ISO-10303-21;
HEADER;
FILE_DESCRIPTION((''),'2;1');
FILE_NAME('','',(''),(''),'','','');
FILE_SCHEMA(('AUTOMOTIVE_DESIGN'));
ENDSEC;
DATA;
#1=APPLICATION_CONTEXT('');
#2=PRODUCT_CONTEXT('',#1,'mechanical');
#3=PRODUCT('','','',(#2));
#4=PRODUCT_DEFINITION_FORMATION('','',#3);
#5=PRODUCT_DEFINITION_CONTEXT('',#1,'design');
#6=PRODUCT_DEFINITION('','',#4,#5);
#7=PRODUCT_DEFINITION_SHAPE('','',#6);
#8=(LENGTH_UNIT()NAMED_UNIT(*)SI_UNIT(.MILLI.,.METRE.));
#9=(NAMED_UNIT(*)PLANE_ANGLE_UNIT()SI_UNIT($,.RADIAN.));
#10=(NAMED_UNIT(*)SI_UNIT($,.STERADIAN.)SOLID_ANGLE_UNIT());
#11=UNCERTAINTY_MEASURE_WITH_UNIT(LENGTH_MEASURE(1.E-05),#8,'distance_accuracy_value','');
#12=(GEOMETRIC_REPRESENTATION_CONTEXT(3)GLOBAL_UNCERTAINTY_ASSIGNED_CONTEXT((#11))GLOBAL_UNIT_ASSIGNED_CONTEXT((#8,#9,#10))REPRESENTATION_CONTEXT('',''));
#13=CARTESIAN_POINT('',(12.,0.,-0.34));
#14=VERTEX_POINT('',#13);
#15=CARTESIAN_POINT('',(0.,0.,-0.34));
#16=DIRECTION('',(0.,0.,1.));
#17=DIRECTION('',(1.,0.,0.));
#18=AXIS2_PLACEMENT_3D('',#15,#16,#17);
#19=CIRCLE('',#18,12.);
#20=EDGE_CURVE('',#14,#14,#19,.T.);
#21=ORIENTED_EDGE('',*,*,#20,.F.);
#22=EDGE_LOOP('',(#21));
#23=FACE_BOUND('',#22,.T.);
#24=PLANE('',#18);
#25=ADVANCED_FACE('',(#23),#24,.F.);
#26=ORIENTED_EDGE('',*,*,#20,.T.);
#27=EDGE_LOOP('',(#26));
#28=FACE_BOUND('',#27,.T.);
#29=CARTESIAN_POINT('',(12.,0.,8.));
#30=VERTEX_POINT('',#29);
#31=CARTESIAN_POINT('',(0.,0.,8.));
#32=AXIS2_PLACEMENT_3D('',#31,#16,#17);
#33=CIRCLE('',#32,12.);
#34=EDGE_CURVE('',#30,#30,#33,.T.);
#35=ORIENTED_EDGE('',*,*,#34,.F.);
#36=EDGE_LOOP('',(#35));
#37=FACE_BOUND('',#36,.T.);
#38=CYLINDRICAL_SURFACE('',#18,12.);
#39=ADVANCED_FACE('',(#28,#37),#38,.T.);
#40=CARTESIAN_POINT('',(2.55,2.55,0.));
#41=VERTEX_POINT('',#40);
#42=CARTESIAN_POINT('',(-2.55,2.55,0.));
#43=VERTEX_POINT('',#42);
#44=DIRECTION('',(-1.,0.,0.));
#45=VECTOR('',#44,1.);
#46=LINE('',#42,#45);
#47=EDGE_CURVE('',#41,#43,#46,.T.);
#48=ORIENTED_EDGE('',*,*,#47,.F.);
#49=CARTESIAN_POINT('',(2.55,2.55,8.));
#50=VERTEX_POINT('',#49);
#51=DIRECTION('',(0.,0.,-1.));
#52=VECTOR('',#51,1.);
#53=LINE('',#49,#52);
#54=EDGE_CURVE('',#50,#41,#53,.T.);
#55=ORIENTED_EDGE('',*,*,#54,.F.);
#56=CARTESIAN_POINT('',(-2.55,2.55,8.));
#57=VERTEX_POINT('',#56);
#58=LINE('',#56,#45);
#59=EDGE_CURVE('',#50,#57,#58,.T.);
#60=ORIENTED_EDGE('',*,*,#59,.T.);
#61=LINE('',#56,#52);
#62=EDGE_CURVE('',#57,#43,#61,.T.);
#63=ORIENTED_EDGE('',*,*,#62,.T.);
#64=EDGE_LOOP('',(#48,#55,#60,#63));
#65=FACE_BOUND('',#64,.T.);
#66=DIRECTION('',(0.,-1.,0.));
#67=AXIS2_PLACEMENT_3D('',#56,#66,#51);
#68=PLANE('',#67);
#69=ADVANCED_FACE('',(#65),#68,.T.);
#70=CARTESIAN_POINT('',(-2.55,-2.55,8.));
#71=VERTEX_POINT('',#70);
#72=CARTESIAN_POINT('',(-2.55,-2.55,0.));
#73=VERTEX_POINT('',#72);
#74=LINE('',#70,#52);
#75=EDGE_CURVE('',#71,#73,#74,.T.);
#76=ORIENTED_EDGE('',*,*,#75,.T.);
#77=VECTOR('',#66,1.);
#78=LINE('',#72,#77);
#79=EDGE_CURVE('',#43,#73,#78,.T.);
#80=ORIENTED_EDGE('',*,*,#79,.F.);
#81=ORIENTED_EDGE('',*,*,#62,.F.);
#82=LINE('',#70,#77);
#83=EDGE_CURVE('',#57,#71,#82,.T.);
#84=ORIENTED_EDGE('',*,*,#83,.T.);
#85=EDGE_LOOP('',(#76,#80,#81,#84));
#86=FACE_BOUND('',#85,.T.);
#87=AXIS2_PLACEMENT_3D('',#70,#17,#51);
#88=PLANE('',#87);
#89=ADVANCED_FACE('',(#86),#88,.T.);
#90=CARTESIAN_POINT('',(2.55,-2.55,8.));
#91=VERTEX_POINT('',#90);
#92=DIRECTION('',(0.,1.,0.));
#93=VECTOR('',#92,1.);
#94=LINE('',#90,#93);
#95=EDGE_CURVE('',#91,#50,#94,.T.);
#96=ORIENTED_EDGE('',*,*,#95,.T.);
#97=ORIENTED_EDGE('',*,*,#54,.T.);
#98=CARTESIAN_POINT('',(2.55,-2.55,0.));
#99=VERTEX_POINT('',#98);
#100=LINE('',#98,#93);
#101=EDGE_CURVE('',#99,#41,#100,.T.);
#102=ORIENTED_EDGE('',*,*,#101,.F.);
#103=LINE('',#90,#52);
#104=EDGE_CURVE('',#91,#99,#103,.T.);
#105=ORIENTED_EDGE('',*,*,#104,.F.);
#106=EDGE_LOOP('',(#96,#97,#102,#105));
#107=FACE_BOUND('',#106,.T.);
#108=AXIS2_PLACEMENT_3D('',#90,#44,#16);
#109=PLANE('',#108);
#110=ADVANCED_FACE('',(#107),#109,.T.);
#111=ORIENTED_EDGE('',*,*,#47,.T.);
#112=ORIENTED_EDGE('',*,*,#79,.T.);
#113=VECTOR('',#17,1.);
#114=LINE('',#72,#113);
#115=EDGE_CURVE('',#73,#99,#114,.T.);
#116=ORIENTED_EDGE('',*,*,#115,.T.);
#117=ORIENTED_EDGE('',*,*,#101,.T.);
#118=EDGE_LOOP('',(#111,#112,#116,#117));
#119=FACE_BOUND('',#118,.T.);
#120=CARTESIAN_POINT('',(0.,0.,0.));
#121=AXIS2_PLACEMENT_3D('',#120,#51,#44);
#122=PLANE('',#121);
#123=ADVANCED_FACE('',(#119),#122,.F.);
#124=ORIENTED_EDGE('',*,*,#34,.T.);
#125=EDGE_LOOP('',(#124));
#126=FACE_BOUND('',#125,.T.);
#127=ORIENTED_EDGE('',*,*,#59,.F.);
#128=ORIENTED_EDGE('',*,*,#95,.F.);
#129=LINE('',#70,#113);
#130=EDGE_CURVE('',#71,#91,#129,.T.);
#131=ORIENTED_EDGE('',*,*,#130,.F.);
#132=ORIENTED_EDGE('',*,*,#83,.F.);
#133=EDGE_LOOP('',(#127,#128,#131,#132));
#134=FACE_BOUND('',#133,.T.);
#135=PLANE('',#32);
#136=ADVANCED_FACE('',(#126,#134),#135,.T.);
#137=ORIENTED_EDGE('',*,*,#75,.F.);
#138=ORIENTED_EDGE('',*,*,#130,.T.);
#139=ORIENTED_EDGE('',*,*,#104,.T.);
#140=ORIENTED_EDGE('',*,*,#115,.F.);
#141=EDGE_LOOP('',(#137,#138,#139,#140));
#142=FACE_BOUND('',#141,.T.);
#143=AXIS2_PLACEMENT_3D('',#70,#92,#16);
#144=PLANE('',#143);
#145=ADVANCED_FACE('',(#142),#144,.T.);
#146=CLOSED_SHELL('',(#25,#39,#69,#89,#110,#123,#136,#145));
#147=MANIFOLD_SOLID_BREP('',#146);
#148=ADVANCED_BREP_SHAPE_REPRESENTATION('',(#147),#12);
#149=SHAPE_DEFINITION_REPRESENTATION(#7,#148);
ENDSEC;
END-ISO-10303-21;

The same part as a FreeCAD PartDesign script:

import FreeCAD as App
import Part
import Sketcher
from FreeCAD import Vector

doc = App.newDocument("Part")
params = doc.addObject("Spreadsheet::Sheet", "Params")
for row, (alias, value) in enumerate([
    ("sketch1_diameter", "24 mm"),
    ("pad1_length", "8.34 mm"),
    ("sketch2_width", "5.1 mm"),
], start=1):
    params.set(f"A{row}", alias)
    params.set(f"B{row}", "=" + value)
    params.setAlias(f"B{row}", alias)

body = doc.addObject("PartDesign::Body", "Body")

# Sketch on XY plane
sketch1 = body.newObject("Sketcher::SketchObject", "Sketch")
sketch1.AttachmentSupport = (doc.getObject("XY_Plane"), [""])
sketch1.MapMode = "FlatFace"
sketch1.AttachmentOffset = App.Placement(Vector(0, 0, 8), App.Rotation())
sketch1.addGeometry(Part.Circle(Vector(0, 0, 0), Vector(0, 0, 1), 12), False)
sketch1.addConstraint([
    Sketcher.Constraint("Coincident", 0, 3, -1, 1),
    Sketcher.Constraint("Diameter", 0, 24.0),
])
sketch1.setExpression("Constraints[1]", "Params.sketch1_diameter")
pad1 = body.newObject("PartDesign::Pad", "Pad")
pad1.Profile = sketch1
pad1.setExpression("Length", "Params.pad1_length")
pad1.Reversed = True

# Sketch on XY plane
sketch2 = body.newObject("Sketcher::SketchObject", "Sketch001")
sketch2.AttachmentSupport = (doc.getObject("XY_Plane"), [""])
sketch2.MapMode = "FlatFace"
sketch2.addGeometry([
    Part.LineSegment(Vector(-3, 3, 0), Vector(-3, -3, 0)),
    Part.LineSegment(Vector(-3, -3, 0), Vector(3, -3, 0)),
    Part.LineSegment(Vector(3, -3, 0), Vector(3, 3, 0)),
    Part.LineSegment(Vector(3, 3, 0), Vector(-3, 3, 0)),
], False)
sketch2.addConstraint([
    Sketcher.Constraint("Coincident", 0, 2, 1, 1),
    Sketcher.Constraint("Coincident", 1, 2, 2, 1),
    Sketcher.Constraint("Coincident", 2, 2, 3, 1),
    Sketcher.Constraint("Coincident", 3, 2, 0, 1),
    Sketcher.Constraint("Vertical", 0),
    Sketcher.Constraint("Horizontal", 1),
    Sketcher.Constraint("Vertical", 2),
    Sketcher.Constraint("Horizontal", 3),
    Sketcher.Constraint("Symmetric", 0, 2, 2, 2, -1, 1),
    Sketcher.Constraint("Equal", 3, 0),
    Sketcher.Constraint("DistanceX", 1, 1, 1, 2, 5.1),
])
sketch2.setExpression("Constraints[10]", "Params.sketch2_width")
pocket1 = body.newObject("PartDesign::Pocket", "Pocket")
pocket1.Profile = sketch2
pocket1.Type = "ThroughAll"
pocket1.Reversed = True

doc.recompute()
